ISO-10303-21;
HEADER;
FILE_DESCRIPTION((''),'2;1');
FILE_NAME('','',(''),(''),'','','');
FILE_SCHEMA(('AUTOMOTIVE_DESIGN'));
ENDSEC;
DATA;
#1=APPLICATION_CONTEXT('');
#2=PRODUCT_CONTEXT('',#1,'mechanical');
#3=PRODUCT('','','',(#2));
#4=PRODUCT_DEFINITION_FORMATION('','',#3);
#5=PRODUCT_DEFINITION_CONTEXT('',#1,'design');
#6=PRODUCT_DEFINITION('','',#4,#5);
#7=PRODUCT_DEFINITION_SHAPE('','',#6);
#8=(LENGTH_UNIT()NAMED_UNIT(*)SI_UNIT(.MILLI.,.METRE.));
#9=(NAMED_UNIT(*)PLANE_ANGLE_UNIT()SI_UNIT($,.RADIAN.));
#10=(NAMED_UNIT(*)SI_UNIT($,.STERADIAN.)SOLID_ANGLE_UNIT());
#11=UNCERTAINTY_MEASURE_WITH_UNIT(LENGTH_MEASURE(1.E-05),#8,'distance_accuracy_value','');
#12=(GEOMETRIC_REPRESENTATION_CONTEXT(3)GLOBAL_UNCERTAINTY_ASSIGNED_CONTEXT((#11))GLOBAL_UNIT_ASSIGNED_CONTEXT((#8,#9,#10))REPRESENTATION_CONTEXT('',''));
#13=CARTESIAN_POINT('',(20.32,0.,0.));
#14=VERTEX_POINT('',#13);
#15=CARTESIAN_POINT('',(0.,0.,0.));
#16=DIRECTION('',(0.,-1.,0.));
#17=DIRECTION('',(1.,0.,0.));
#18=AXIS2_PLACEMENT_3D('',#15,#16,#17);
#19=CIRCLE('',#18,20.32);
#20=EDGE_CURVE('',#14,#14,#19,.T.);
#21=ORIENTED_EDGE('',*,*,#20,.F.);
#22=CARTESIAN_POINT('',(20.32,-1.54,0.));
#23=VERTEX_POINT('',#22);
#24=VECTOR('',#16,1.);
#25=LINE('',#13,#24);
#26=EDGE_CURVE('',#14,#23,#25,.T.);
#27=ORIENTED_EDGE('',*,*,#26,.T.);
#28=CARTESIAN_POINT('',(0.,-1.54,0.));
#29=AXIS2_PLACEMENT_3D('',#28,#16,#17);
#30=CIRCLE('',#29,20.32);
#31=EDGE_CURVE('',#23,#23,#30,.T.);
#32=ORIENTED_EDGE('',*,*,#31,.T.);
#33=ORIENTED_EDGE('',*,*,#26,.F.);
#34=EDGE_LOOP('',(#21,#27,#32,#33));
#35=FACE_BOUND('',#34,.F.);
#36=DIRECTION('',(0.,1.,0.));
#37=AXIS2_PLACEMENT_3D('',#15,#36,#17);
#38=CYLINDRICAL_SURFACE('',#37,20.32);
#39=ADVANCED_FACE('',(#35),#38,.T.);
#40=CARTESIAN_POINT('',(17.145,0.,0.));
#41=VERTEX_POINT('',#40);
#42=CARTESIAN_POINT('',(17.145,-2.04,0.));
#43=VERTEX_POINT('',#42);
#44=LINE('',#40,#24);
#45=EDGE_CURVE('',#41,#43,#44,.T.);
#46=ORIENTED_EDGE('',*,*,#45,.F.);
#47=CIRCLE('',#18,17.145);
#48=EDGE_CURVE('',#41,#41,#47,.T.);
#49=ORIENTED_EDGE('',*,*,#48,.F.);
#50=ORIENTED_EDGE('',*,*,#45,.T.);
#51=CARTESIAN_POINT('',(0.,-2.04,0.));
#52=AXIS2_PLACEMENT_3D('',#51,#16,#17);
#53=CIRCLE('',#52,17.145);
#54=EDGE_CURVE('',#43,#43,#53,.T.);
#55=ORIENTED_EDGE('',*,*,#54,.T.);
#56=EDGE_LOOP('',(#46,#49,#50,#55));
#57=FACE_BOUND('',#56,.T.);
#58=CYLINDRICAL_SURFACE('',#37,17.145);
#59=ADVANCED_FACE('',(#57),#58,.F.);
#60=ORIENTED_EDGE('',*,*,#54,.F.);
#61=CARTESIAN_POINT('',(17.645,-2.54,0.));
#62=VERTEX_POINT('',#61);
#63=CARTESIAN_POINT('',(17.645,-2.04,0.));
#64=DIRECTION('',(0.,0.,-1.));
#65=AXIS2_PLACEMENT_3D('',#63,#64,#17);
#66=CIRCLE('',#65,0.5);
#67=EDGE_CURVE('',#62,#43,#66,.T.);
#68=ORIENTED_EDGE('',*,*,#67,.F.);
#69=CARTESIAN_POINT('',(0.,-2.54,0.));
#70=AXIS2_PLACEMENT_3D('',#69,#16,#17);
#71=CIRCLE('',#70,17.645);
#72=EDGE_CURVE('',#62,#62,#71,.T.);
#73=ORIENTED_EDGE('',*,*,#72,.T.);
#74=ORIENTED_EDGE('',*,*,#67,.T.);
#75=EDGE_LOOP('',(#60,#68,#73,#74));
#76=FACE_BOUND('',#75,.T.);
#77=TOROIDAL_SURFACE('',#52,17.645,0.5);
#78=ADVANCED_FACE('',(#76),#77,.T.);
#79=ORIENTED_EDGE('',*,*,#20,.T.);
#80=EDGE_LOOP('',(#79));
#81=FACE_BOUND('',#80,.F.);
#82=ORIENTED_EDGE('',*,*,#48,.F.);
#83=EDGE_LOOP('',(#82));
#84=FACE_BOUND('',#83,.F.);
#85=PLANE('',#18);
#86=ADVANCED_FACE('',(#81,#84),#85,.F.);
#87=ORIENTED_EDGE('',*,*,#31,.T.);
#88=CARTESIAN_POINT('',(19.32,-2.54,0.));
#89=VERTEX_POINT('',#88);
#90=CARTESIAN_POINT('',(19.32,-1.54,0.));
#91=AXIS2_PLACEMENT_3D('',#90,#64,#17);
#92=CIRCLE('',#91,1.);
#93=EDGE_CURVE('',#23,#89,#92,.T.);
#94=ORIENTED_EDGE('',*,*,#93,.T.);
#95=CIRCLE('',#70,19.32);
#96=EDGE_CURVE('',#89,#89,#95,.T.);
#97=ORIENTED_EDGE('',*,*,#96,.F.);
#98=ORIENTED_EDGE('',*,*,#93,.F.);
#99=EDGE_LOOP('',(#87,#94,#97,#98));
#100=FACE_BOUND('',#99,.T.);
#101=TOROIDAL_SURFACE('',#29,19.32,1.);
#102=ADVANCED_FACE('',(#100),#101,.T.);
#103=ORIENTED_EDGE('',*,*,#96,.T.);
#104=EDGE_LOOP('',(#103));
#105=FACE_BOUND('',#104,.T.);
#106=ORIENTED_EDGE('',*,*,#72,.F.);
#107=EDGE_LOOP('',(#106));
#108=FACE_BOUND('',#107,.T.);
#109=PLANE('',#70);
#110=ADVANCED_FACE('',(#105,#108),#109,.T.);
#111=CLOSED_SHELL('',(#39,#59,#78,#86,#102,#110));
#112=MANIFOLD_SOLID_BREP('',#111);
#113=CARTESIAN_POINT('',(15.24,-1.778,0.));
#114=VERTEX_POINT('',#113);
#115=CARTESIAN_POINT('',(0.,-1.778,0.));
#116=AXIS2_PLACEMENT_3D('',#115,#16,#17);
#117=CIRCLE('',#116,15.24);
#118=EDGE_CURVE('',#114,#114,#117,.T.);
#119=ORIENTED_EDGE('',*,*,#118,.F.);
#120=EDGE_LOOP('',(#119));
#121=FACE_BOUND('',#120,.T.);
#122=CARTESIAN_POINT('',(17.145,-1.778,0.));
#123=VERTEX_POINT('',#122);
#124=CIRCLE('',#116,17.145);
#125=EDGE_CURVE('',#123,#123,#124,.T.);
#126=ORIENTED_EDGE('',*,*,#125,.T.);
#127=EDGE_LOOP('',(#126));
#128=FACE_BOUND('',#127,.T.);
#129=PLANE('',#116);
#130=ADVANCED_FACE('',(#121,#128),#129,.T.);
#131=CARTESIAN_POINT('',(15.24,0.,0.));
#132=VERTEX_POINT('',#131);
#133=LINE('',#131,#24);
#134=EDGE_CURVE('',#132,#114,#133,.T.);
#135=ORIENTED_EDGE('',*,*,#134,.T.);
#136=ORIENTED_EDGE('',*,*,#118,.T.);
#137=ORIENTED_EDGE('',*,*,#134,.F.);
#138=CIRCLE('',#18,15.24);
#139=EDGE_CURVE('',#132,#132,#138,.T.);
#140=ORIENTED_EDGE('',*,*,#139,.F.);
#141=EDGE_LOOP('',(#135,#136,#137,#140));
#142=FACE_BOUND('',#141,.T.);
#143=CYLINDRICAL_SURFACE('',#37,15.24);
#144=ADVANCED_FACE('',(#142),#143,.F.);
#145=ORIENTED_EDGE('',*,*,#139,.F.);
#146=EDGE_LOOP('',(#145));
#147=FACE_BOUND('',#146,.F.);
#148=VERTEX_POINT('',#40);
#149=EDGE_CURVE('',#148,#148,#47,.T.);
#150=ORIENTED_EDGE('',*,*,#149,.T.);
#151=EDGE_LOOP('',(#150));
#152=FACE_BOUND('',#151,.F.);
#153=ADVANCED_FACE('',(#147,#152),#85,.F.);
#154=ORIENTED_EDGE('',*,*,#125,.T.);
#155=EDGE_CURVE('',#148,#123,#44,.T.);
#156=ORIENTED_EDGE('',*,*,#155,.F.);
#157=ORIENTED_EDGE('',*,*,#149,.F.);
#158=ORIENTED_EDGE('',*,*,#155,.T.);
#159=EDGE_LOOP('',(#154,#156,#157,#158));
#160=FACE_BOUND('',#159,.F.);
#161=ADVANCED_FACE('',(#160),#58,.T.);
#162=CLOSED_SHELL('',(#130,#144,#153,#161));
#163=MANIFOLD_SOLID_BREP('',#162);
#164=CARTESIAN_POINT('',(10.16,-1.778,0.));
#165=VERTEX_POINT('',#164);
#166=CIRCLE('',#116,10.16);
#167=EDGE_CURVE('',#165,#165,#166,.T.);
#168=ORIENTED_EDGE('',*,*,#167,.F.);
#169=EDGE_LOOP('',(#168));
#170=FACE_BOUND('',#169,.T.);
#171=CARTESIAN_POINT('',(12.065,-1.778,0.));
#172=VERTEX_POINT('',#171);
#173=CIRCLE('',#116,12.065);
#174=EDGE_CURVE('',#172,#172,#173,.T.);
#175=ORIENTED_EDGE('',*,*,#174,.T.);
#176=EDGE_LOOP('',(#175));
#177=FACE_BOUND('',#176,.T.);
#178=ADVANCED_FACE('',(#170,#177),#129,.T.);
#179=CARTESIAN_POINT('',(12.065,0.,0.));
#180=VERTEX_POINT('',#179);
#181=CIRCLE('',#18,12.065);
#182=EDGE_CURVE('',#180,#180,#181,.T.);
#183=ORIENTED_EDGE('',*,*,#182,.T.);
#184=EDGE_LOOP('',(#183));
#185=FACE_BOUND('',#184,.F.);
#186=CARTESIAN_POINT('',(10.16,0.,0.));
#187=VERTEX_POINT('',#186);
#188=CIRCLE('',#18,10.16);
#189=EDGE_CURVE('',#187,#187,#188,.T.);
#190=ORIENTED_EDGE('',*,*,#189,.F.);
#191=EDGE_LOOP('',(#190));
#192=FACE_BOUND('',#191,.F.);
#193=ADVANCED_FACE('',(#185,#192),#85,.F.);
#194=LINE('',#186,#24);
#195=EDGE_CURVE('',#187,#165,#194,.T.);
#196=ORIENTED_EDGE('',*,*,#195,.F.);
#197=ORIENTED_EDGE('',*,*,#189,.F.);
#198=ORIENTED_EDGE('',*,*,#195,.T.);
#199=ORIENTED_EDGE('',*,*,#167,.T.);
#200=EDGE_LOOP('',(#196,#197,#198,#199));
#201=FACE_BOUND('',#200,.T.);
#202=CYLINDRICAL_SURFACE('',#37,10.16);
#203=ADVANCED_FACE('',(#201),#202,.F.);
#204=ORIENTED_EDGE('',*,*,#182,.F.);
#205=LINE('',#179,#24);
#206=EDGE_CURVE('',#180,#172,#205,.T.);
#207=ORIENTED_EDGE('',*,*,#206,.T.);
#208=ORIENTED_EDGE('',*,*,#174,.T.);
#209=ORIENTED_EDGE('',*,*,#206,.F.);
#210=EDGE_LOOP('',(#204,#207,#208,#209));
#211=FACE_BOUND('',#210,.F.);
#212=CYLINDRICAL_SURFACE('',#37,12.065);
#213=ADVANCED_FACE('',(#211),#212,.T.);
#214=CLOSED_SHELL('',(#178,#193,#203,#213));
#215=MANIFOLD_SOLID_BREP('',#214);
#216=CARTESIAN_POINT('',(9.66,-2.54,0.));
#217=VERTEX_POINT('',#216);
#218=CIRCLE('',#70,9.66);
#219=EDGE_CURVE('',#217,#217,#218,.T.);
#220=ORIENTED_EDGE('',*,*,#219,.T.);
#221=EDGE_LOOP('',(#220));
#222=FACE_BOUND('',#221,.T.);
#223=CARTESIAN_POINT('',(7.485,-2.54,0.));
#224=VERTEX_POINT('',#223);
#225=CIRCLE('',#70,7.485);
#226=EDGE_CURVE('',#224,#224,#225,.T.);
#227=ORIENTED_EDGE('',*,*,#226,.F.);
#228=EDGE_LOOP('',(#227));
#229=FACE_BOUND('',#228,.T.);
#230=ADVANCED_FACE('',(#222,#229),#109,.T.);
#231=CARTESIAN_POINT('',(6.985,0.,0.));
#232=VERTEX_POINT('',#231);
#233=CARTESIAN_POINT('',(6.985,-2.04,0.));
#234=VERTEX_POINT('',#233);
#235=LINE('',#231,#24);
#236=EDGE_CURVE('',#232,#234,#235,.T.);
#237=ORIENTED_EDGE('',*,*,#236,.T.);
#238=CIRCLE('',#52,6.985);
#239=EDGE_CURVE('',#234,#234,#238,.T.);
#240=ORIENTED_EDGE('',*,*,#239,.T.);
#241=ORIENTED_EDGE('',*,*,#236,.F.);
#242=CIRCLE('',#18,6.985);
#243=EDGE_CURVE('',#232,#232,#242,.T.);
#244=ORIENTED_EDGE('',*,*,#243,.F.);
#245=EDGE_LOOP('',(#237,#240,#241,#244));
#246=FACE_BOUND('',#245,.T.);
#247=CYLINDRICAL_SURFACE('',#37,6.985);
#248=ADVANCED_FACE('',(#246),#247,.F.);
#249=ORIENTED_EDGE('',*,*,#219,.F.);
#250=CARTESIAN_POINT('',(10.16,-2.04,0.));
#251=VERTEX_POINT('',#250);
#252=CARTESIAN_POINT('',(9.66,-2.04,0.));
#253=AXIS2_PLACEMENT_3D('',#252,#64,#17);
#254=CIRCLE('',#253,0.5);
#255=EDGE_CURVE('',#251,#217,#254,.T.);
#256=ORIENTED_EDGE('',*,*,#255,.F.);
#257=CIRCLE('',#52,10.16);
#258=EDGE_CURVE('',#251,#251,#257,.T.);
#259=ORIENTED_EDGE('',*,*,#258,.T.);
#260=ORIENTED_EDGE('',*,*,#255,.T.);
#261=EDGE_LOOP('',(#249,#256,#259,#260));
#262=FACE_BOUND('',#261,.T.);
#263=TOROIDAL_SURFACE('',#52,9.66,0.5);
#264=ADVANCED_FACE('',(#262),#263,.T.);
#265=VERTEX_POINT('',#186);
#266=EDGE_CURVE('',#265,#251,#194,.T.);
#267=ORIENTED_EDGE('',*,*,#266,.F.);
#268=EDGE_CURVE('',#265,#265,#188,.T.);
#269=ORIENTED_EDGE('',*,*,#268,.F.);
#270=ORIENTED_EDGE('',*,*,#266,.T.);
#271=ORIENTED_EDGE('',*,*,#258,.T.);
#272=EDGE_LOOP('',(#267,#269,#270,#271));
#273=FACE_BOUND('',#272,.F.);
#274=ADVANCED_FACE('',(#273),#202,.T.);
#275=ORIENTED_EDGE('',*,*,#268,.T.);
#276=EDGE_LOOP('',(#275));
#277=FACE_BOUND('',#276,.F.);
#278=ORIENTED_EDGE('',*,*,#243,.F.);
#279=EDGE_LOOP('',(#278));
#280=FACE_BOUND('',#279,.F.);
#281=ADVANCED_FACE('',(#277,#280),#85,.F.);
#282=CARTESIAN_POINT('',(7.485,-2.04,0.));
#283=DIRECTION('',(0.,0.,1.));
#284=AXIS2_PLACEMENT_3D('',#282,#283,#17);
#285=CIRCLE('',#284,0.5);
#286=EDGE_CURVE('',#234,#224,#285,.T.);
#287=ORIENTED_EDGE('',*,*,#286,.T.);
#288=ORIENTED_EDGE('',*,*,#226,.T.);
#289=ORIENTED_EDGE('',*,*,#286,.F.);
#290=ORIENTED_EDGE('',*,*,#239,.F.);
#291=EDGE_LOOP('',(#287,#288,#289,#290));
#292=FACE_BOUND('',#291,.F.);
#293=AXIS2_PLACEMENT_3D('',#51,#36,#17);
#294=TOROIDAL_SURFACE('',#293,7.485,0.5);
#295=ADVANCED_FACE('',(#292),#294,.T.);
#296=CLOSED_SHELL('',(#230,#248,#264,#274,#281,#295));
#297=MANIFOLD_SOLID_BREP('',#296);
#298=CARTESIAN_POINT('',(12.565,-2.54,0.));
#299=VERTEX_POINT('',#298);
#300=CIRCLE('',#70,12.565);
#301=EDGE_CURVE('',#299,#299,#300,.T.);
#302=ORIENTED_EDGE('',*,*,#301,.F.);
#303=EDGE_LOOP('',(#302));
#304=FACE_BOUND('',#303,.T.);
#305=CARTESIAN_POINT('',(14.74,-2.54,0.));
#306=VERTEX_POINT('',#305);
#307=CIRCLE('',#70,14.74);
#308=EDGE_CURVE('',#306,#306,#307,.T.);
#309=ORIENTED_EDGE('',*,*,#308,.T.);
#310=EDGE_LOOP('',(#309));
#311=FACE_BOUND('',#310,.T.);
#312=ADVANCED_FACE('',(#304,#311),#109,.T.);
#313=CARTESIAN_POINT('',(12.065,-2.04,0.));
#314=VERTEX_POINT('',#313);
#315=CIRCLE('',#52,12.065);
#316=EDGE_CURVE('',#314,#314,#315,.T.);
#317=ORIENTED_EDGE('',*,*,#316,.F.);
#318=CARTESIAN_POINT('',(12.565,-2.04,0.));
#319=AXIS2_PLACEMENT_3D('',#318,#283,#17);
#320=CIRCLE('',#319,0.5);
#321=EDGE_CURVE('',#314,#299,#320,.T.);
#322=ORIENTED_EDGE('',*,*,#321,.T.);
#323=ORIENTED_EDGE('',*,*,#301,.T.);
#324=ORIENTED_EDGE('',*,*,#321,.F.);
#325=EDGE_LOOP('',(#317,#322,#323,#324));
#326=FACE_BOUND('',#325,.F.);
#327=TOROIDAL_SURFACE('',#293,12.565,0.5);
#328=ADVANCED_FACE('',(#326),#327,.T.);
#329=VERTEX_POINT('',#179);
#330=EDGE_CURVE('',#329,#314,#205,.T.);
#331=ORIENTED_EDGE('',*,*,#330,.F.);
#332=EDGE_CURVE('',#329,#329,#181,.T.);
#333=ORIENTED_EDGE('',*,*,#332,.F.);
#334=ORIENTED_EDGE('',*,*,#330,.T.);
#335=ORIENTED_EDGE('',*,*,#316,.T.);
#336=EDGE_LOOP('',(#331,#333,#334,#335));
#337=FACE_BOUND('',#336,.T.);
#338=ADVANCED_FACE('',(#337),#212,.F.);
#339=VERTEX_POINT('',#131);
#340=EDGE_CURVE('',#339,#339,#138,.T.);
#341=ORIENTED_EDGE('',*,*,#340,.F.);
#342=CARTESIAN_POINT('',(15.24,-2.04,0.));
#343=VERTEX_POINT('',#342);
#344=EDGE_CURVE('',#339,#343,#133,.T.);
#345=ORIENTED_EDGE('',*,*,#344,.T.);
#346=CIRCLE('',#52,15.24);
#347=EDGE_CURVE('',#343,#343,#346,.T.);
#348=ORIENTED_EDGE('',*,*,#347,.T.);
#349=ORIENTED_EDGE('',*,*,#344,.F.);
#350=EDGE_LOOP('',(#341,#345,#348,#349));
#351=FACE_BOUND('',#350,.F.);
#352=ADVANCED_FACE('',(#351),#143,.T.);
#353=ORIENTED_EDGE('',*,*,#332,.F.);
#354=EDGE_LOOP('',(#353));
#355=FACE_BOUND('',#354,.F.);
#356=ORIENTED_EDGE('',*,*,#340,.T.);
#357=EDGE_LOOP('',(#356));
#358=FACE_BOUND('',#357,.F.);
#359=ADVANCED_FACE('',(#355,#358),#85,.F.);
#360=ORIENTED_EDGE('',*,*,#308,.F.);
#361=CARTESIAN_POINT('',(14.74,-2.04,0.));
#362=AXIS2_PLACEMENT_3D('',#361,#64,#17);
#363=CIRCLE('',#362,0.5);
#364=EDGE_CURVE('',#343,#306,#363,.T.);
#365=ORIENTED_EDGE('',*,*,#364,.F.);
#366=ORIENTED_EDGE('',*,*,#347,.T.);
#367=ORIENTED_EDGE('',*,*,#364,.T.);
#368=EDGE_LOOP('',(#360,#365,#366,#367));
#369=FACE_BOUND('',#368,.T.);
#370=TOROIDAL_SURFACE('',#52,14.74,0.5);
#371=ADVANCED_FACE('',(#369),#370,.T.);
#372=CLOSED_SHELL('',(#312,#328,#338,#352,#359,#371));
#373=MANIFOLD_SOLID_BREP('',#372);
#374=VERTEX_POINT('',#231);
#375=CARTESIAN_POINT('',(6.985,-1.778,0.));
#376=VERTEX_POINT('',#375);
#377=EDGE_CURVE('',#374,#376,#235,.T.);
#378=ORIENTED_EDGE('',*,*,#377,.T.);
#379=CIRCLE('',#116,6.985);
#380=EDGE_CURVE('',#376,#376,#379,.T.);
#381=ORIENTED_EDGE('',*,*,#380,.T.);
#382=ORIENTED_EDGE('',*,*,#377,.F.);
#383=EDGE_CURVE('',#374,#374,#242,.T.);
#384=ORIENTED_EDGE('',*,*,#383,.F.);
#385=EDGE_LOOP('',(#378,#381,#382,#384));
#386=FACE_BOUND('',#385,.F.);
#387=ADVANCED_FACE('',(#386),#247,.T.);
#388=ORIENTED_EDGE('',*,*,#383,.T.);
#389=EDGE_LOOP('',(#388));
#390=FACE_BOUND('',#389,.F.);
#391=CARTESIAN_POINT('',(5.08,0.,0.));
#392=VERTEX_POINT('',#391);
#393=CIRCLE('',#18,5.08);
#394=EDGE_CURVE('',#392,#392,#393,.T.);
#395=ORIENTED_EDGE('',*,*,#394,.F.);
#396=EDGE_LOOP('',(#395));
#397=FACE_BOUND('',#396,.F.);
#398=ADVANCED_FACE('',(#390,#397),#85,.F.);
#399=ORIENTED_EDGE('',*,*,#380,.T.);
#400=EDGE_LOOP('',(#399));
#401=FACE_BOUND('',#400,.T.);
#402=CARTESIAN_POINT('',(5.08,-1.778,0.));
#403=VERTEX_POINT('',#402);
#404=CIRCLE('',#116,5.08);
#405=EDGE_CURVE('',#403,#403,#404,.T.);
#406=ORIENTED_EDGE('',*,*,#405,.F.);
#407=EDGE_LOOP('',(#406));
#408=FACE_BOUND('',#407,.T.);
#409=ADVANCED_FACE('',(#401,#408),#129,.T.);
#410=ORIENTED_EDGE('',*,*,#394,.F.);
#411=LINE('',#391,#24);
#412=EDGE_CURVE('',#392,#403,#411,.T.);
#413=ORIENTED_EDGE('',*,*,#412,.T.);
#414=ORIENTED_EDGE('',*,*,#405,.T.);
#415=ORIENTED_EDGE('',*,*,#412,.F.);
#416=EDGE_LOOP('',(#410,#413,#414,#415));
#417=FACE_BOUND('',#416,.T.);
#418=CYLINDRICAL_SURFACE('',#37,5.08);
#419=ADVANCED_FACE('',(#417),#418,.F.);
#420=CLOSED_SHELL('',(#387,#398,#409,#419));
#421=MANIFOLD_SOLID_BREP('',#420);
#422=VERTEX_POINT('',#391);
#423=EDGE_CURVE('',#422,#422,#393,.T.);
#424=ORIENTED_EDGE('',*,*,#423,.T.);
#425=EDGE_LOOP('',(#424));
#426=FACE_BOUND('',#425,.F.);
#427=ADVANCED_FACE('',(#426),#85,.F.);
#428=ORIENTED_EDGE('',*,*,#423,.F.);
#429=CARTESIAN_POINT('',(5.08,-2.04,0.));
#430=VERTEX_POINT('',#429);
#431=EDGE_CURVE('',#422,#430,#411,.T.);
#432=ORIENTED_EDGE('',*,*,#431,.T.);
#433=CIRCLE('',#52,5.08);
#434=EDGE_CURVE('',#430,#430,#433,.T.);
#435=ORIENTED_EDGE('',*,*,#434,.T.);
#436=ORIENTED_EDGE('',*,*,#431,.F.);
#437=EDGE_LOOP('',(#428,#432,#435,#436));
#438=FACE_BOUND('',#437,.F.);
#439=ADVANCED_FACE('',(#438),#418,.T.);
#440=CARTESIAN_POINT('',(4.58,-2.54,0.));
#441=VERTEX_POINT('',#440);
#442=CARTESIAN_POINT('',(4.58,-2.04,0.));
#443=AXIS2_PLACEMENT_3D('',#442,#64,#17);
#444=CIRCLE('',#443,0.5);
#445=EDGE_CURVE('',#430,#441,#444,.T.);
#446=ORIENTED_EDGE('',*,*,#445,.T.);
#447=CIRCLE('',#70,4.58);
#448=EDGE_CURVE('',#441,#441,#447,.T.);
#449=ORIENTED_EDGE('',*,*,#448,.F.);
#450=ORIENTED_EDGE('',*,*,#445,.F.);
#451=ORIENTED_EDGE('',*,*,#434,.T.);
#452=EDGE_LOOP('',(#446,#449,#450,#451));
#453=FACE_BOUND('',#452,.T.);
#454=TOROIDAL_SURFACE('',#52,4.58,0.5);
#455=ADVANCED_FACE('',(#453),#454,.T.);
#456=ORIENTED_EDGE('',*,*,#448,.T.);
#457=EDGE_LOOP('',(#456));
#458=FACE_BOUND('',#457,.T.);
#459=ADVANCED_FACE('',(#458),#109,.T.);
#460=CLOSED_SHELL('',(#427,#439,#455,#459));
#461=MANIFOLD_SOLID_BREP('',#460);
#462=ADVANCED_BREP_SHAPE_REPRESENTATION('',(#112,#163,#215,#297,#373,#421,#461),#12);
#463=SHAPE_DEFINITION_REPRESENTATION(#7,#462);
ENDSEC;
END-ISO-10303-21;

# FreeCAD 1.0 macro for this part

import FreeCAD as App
import Part
import Sketcher
Q = App.Units.Quantity


def edges_at(feature, points):
    """Names of the edges that pass closest to the given points."""
    edges = feature.Shape.Edges
    near = lambda p: min(range(len(edges)), key=lambda i: edges[i].distToShape(Part.Vertex(*p))[0])
    return sorted({f"Edge{near(p) + 1}" for p in points})

doc = App.newDocument("Part")
body = doc.addObject("PartDesign::Body", "Body")
body.AllowCompound = True

# Sketch on XZ plane
sketch1 = body.newObject("Sketcher::SketchObject", "Sketch")
sketch1.AttachmentSupport = (doc.getObject("XZ_Plane"), [""])
sketch1.MapMode = "FlatFace"
sketch1.addGeometry([
    Part.Circle(App.Vector(0, 0, 0), App.Vector(0, 0, 1), 20),  # 0
    Part.Circle(App.Vector(0, 0, 0), App.Vector(0, 0, 1), 17),  # 1
    Part.Circle(App.Vector(0, 0, 0), App.Vector(0, 0, 1), 15),  # 2
    Part.Circle(App.Vector(0, 0, 0), App.Vector(0, 0, 1), 12),  # 3
    Part.Circle(App.Vector(0, 0, 0), App.Vector(0, 0, 1), 10),  # 4
    Part.Circle(App.Vector(0, 0, 0), App.Vector(0, 0, 1), 7),  # 5
    Part.Circle(App.Vector(0, 0, 0), App.Vector(0, 0, 1), 5),  # 6
], False)
sketch1.addConstraint([
    Sketcher.Constraint("Coincident", 0, 3, -1, 1),
    Sketcher.Constraint("Coincident", 1, 3, -1, 1),
    Sketcher.Constraint("Coincident", 2, 3, -1, 1),
    Sketcher.Constraint("Coincident", 3, 3, -1, 1),
    Sketcher.Constraint("Coincident", 4, 3, -1, 1),
    Sketcher.Constraint("Coincident", 5, 3, -1, 1),
    Sketcher.Constraint("Coincident", 6, 3, -1, 1),
    Sketcher.Constraint("Diameter", 0, Q("1.6 in")),
    Sketcher.Constraint("Diameter", 2, Q("1.2 in")),
    Sketcher.Constraint("Diameter", 4, Q("0.8 in")),
    Sketcher.Constraint("Diameter", 6, Q("0.4 in")),
    Sketcher.Constraint("Diameter", 1, Q("1.35 in")),
    Sketcher.Constraint("Diameter", 3, Q("0.95 in")),
    Sketcher.Constraint("Diameter", 5, Q("0.55 in")),
])
pad1 = body.newObject("PartDesign::Pad", "Pad")
pad1.Profile = sketch1
pad1.Length = Q("0.1 in")
doc.recompute()

fillet = body.newObject("PartDesign::Fillet", "Fillet")
fillet.Base = (pad1, edges_at(pad1, [(-20.32, -2.54, 0)]))
fillet.Radius = 1
doc.recompute()

fillet2 = body.newObject("PartDesign::Fillet", "Fillet001")
fillet2.Base = (fillet, edges_at(fillet, [
    (-5.08, -2.54, 0),
    (-6.985, -2.54, 0),
    (-10.16, -2.54, 0),
    (-12.065, -2.54, 0),
    (-15.24, -2.54, 0),
    (-17.145, -2.54, 0),
]))
fillet2.Radius = 0.5
body2 = doc.addObject("PartDesign::Body", "Body001")
body2.AllowCompound = True

# Sketch on XZ plane
sketch2 = body2.newObject("Sketcher::SketchObject", "Sketch001")
sketch2.AttachmentSupport = (doc.getObject("XZ_Plane001"), [""])
sketch2.MapMode = "FlatFace"
sketch2.addGeometry([
    Part.Circle(App.Vector(0, 0, 0), App.Vector(0, 0, 1), 17),  # 0
    Part.Circle(App.Vector(0, 0, 0), App.Vector(0, 0, 1), 15),  # 1
    Part.Circle(App.Vector(0, 0, 0), App.Vector(0, 0, 1), 12),  # 2
    Part.Circle(App.Vector(0, 0, 0), App.Vector(0, 0, 1), 10),  # 3
    Part.Circle(App.Vector(0, 0, 0), App.Vector(0, 0, 1), 7),  # 4
    Part.Circle(App.Vector(0, 0, 0), App.Vector(0, 0, 1), 5),  # 5
], False)
sketch2.addConstraint([
    Sketcher.Constraint("Coincident", 0, 3, -1, 1),
    Sketcher.Constraint("Coincident", 1, 3, -1, 1),
    Sketcher.Constraint("Coincident", 2, 3, -1, 1),
    Sketcher.Constraint("Coincident", 3, 3, -1, 1),
    Sketcher.Constraint("Coincident", 4, 3, -1, 1),
    Sketcher.Constraint("Coincident", 5, 3, -1, 1),
    Sketcher.Constraint("Diameter", 1, Q("1.2 in")),
    Sketcher.Constraint("Diameter", 3, Q("0.8 in")),
    Sketcher.Constraint("Diameter", 5, Q("0.4 in")),
    Sketcher.Constraint("Diameter", 0, Q("1.35 in")),
    Sketcher.Constraint("Diameter", 2, Q("0.95 in")),
    Sketcher.Constraint("Diameter", 4, Q("0.55 in")),
])
pad2 = body2.newObject("PartDesign::Pad", "Pad001")
pad2.Profile = sketch2
pad2.Length = Q("0.07 in")

doc.recompute()
